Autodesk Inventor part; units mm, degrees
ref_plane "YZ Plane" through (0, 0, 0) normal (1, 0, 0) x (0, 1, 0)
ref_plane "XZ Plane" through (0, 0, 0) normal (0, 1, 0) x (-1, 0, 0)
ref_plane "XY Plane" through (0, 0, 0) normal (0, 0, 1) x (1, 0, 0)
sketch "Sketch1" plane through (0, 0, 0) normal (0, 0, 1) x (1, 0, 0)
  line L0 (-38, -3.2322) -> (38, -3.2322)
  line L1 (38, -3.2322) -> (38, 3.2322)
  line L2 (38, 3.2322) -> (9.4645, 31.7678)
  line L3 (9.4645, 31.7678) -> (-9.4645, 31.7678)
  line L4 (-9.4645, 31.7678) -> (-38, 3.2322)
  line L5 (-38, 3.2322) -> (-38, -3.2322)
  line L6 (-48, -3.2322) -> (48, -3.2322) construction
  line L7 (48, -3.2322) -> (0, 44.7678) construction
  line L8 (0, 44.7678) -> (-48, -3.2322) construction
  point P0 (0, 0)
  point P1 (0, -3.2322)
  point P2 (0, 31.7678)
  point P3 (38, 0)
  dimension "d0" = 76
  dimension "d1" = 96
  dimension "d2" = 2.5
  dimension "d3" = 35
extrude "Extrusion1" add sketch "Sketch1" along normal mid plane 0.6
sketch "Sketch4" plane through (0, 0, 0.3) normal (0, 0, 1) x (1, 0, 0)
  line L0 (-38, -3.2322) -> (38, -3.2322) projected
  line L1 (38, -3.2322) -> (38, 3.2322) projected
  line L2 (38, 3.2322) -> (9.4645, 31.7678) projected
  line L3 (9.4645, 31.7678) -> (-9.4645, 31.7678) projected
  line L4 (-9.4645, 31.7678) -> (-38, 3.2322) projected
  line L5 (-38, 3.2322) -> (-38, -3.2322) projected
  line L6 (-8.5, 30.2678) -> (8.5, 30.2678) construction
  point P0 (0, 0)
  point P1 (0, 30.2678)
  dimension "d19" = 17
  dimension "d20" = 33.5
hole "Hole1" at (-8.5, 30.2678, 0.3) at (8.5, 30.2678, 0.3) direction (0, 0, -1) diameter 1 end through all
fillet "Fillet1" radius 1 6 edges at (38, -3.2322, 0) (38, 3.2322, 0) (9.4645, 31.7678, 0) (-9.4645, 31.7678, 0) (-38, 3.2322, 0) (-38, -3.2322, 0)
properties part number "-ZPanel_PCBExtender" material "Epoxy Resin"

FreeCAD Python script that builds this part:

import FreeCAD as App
import Part
import Sketcher
from FreeCAD import Vector


def edges_at(feature, points):
    """Names of the edges that pass closest to the given points."""
    edges = feature.Shape.Edges
    near = lambda p: min(range(len(edges)), key=lambda i: edges[i].distToShape(Part.Vertex(*p))[0])
    return sorted({f"Edge{near(p) + 1}" for p in points})


def add_polygon(sketch, points):
    """Adds a closed chain of lines whose ends are joined by coincident constraints."""
    first, n = sketch.GeometryCount, len(points)
    for a, b in zip(points, points[1:] + points[:1]):
        sketch.addGeometry(Part.LineSegment(App.Vector(*a, 0), App.Vector(*b, 0)), False)
    for i in range(n):
        sketch.addConstraint(Sketcher.Constraint("Coincident", first + i, 2, first + (i + 1) % n, 1))

doc = App.newDocument("Part")
body = doc.addObject("PartDesign::Body", "Body")

sketch1 = body.newObject("Sketcher::SketchObject", "Sketch")
sketch1.AttachmentSupport = (doc.getObject("XY_Plane"), [""])
sketch1.MapMode = "FlatFace"
add_polygon(sketch1, [(-38, 3), (-38, -3), (38, -3), (38, 3), (9, 32), (-9, 32)])
sketch1.addConstraint([
    Sketcher.Constraint("Vertical", 0),
    Sketcher.Constraint("Horizontal", 1),
    Sketcher.Constraint("Vertical", 2),
    Sketcher.Constraint("Horizontal", 4),
    Sketcher.Constraint("Symmetric", 0, 2, 2, 2, -1, 1),
    Sketcher.Constraint("Perpendicular", 3, 5),
    Sketcher.Constraint("Horizontal", 2, 2, 5, 2),
    Sketcher.Constraint("Equal", 3, 5),
    Sketcher.Constraint("DistanceX", 1, 1, 1, 2, 76.0),
    Sketcher.Constraint("DistanceY", 1, 2, 3, 2, 35.0),
    Sketcher.Constraint("DistanceX", 4, 2, 4, 1, 18.929),
])
pad1 = body.newObject("PartDesign::Pad", "Pad")
pad1.Profile = sketch1
pad1.Length = 0.6
pad1.Midplane = True

sketch2 = body.newObject("Sketcher::SketchObject", "Sketch001")
sketch2.AttachmentSupport = (doc.getObject("XY_Plane"), [""])
sketch2.MapMode = "FlatFace"
sketch2.AttachmentOffset = App.Placement(Vector(0, 0, 0.3), App.Rotation())
sketch2.addGeometry([
    Part.Circle(Vector(-8.5, 30.3, 0), Vector(0, 0, 1), 0.5),
    Part.Circle(Vector(8.5, 30.3, 0), Vector(0, 0, 1), 0.5),
], False)
sketch2.addConstraint([
    Sketcher.Constraint("Equal", 0, 1),
    Sketcher.Constraint("Symmetric", 0, 3, 1, 3, -2),
    Sketcher.Constraint("Diameter", 0, 1.0),
    Sketcher.Constraint("DistanceX", 0, 3, 1, 3, 17.0),
    Sketcher.Constraint("DistanceY", -1, 1, 0, 3, 30.2678),
])
doc.recompute()
hole = body.newObject("PartDesign::Hole", "Hole")
hole.Profile = sketch2
hole.ThreadType = "None"
hole.Diameter = 1
hole.DepthType = "ThroughAll"
doc.recompute()

fillet = body.newObject("PartDesign::Fillet", "Fillet")
fillet.Base = (hole, edges_at(hole, [
    (38, -3.232, 0),
    (38, 3.232, 0),
    (9.464, 31.768, 0),
    (-9.464, 31.768, 0),
    (-38, 3.232, 0),
    (-38, -3.232, 0),
]))
fillet.Radius = 1

doc.recompute()
